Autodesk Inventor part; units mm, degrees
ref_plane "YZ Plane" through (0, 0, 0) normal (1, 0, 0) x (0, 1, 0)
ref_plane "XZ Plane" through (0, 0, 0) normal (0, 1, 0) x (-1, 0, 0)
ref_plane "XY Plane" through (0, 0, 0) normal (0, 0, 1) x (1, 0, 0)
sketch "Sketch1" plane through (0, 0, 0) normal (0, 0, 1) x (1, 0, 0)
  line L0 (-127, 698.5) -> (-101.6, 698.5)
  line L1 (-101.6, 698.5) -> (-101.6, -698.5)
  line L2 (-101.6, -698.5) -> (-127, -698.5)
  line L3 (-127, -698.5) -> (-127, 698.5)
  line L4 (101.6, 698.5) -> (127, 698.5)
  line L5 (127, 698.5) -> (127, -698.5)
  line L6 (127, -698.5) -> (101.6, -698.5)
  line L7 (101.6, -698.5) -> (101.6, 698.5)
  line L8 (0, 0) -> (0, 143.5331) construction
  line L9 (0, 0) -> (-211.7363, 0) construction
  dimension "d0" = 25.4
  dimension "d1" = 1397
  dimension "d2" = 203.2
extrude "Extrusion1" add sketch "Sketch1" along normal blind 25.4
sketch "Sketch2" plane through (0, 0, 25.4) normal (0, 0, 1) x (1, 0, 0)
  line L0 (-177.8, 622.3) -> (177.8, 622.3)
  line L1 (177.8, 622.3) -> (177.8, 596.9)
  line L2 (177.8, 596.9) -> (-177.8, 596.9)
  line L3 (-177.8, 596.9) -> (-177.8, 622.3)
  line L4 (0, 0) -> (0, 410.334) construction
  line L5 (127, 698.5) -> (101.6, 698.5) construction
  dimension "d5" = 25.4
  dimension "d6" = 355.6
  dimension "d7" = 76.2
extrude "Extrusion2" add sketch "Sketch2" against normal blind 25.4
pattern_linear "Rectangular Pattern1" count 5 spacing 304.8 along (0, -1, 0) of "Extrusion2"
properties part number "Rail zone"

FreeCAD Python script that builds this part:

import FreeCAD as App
import Part
import Sketcher
Q = App.Units.Quantity

doc = App.newDocument("Part")
body = doc.addObject("PartDesign::Body", "Body")
body.AllowCompound = True

# Sketch on XY plane
sketch1 = body.newObject("Sketcher::SketchObject", "Sketch")
sketch1.AttachmentSupport = (doc.getObject("XY_Plane"), [""])
sketch1.MapMode = "FlatFace"
sketch1.addGeometry([
    Part.LineSegment(App.Vector(-102, 698, 0), App.Vector(-127, 698, 0)),  # 0
    Part.LineSegment(App.Vector(-127, 698, 0), App.Vector(-127, -698, 0)),  # 1
    Part.LineSegment(App.Vector(-127, -698, 0), App.Vector(-102, -698, 0)),  # 2
    Part.LineSegment(App.Vector(-102, -698, 0), App.Vector(-102, 698, 0)),  # 3
    Part.LineSegment(App.Vector(127, 698, 0), App.Vector(102, 698, 0)),  # 4
    Part.LineSegment(App.Vector(102, 698, 0), App.Vector(102, -698, 0)),  # 5
    Part.LineSegment(App.Vector(102, -698, 0), App.Vector(127, -698, 0)),  # 6
    Part.LineSegment(App.Vector(127, -698, 0), App.Vector(127, 698, 0)),  # 7
], False)
sketch1.addConstraint([
    Sketcher.Constraint("Coincident", 0, 2, 1, 1),
    Sketcher.Constraint("Coincident", 1, 2, 2, 1),
    Sketcher.Constraint("Coincident", 2, 2, 3, 1),
    Sketcher.Constraint("Coincident", 3, 2, 0, 1),
    Sketcher.Constraint("Coincident", 4, 2, 5, 1),
    Sketcher.Constraint("Coincident", 5, 2, 6, 1),
    Sketcher.Constraint("Coincident", 6, 2, 7, 1),
    Sketcher.Constraint("Coincident", 7, 2, 4, 1),
    Sketcher.Constraint("Horizontal", 0),
    Sketcher.Constraint("Vertical", 1),
    Sketcher.Constraint("Horizontal", 2),
    Sketcher.Constraint("Vertical", 3),
    Sketcher.Constraint("Horizontal", 4),
    Sketcher.Constraint("Vertical", 5),
    Sketcher.Constraint("Horizontal", 6),
    Sketcher.Constraint("Vertical", 7),
    Sketcher.Constraint("Symmetric", 2, 2, 4, 2, -1, 1),
    Sketcher.Constraint("Symmetric", 0, 2, 6, 2, -1, 1),
    Sketcher.Constraint("Horizontal", 3, 2, 4, 2),
    Sketcher.Constraint("DistanceX", 0, 2, 0, 1, Q("1 in")),
    Sketcher.Constraint("DistanceY", 1, 2, 1, 1, Q("55 in")),
    Sketcher.Constraint("DistanceX", 3, 2, 4, 2, Q("8 in")),
])
pad1 = body.newObject("PartDesign::Pad", "Pad")
pad1.Profile = sketch1
pad1.Length = Q("1 in")

# Sketch on XY plane
sketch2 = body.newObject("Sketcher::SketchObject", "Sketch001")
sketch2.AttachmentSupport = (doc.getObject("XY_Plane"), [""])
sketch2.MapMode = "FlatFace"
sketch2.AttachmentOffset = App.Placement(App.Vector(0, 0, 1 * 25.4), App.Rotation())
sketch2.addGeometry([
    Part.LineSegment(App.Vector(178, 622, 0), App.Vector(-178, 622, 0)),
    Part.LineSegment(App.Vector(-178, 622, 0), App.Vector(-178, 597, 0)),
    Part.LineSegment(App.Vector(-178, 597, 0), App.Vector(178, 597, 0)),
    Part.LineSegment(App.Vector(178, 597, 0), App.Vector(178, 622, 0)),
], False)
sketch2.addConstraint([
    Sketcher.Constraint("Coincident", 0, 2, 1, 1),
    Sketcher.Constraint("Coincident", 1, 2, 2, 1),
    Sketcher.Constraint("Coincident", 2, 2, 3, 1),
    Sketcher.Constraint("Coincident", 3, 2, 0, 1),
    Sketcher.Constraint("Horizontal", 0),
    Sketcher.Constraint("Vertical", 1),
    Sketcher.Constraint("Horizontal", 2),
    Sketcher.Constraint("Vertical", 3),
    Sketcher.Constraint("DistanceX", 0, 2, 0, 1, Q("14 in")),
    Sketcher.Constraint("DistanceY", 1, 2, 1, 1, Q("1 in")),
    Sketcher.Constraint("DistanceX", 0, 2, -1, 1, Q("7 in")),
    Sketcher.Constraint("DistanceY", -1, 1, 0, 2, Q("24.5 in")),
])
pad2 = body.newObject("PartDesign::Pad", "Pad001")
pad2.Profile = sketch2
pad2.Length = Q("1 in")
pad2.Reversed = True
doc.recompute()

linearpattern = body.newObject("PartDesign::LinearPattern", "LinearPattern")
linearpattern.Originals = [pad2]
linearpattern.Direction = (doc.getObject("Y_Axis"), [""])
linearpattern.Mode = "offset"
linearpattern.Offset = Q("12 in")
linearpattern.Occurrences = 5
linearpattern.Reversed = True
body.Tip = linearpattern

doc.recompute()
